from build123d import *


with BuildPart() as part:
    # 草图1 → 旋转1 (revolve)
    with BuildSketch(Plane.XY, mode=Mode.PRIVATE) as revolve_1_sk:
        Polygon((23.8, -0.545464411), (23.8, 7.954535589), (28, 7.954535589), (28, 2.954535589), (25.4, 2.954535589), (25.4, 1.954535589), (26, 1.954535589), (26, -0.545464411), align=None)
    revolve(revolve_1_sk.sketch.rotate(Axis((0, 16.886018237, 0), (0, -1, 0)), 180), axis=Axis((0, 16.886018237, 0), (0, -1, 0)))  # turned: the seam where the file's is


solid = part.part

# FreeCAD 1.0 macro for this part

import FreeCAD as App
import Part
import Sketcher

V = App.Vector

doc = App.newDocument("Part")
body = doc.addObject("PartDesign::Body", "Body")

# Sketch on XY plane
sketch1 = body.newObject("Sketcher::SketchObject", "Sketch")
sketch1.AttachmentSupport = (doc.getObject("XY_Plane"), [""])
sketch1.MapMode = "FlatFace"
sketch1.addGeometry([
    Part.LineSegment(V(23.8, 8, 0), V(23.8, -0.5, 0)),  # 0
    Part.LineSegment(V(23.8, -0.5, 0), V(26, -0.5, 0)),  # 1
    Part.LineSegment(V(26, -0.5, 0), V(26, 2, 0)),  # 2
    Part.LineSegment(V(26, 2, 0), V(25.4, 2, 0)),  # 3
    Part.LineSegment(V(25.4, 2, 0), V(25.4, 3, 0)),  # 4
    Part.LineSegment(V(25.4, 3, 0), V(28, 3, 0)),  # 5
    Part.LineSegment(V(28, 3, 0), V(28, 8, 0)),  # 6
    Part.LineSegment(V(28, 8, 0), V(23.8, 8, 0)),  # 7
], False)
sketch1.addConstraint([
    Sketcher.Constraint("Coincident", 0, 2, 1, 1),
    Sketcher.Constraint("Coincident", 1, 2, 2, 1),
    Sketcher.Constraint("Coincident", 2, 2, 3, 1),
    Sketcher.Constraint("Coincident", 3, 2, 4, 1),
    Sketcher.Constraint("Coincident", 4, 2, 5, 1),
    Sketcher.Constraint("Coincident", 5, 2, 6, 1),
    Sketcher.Constraint("Coincident", 6, 2, 7, 1),
    Sketcher.Constraint("Coincident", 7, 2, 0, 1),
    Sketcher.Constraint("Vertical", 0),
    Sketcher.Constraint("Horizontal", 1),
    Sketcher.Constraint("Vertical", 2),
    Sketcher.Constraint("Horizontal", 3),
    Sketcher.Constraint("Vertical", 4),
    Sketcher.Constraint("Horizontal", 5),
    Sketcher.Constraint("Vertical", 6),
    Sketcher.Constraint("Horizontal", 7),
    Sketcher.Constraint("DistanceY", 4, 1, 4, 2, 1.0),
    Sketcher.Constraint("DistanceY", 6, 1, 6, 2, 5.0),
    Sketcher.Constraint("DistanceX", 1, 1, 1, 2, 2.2),
    Sketcher.Constraint("DistanceX", 3, 2, 3, 1, 0.6),
    Sketcher.Constraint("DistanceX", 5, 1, 5, 2, 2.6),
    Sketcher.Constraint("DistanceY", 0, 2, 0, 1, 8.5),
    Sketcher.Constraint("DistanceX", -1, 1, 1, 2, 26.0),
    Sketcher.Constraint("DistanceY", 0, 2, -1, 1, 0.545464),
])
revolution = body.newObject("PartDesign::Revolution", "Revolution")
revolution.Profile = sketch1
revolution.ReferenceAxis = (sketch1, ["V_Axis"])
revolution.Angle = 360

doc.recompute()
